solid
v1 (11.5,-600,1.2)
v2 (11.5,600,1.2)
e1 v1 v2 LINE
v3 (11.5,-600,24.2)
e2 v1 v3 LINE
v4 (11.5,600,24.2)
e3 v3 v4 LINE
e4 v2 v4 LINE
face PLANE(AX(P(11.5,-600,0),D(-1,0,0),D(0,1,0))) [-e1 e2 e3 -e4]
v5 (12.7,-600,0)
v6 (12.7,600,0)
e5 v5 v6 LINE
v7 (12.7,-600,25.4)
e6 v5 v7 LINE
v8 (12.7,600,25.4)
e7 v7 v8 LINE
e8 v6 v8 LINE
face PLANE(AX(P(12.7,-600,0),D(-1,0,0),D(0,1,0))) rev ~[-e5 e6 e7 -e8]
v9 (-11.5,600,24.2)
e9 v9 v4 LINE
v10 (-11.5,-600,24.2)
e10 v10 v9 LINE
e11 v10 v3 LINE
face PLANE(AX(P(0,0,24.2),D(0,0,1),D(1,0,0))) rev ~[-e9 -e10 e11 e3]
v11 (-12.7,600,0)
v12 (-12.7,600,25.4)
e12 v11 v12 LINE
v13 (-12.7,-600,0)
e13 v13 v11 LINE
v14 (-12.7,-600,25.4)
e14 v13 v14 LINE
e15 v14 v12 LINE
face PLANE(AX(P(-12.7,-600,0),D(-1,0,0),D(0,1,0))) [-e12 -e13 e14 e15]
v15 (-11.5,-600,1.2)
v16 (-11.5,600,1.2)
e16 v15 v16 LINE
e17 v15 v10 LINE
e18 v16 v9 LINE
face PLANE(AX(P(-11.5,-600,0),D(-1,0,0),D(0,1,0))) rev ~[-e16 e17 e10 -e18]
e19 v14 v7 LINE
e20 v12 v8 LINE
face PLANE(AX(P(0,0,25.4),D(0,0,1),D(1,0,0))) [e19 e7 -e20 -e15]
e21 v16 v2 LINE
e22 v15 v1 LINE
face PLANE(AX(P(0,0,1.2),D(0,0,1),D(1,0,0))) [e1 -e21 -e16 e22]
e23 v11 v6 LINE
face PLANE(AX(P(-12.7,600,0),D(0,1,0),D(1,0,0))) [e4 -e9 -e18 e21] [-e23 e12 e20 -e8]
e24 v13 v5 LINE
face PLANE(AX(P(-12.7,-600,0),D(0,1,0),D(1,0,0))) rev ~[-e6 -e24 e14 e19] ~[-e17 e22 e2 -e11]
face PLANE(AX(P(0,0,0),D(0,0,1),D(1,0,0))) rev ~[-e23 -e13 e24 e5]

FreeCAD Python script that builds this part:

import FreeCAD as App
import Part
import Sketcher

V = App.Vector
Q = App.Units.Quantity


def faces_at(feature, points):
    """Names of the faces that lie closest to the given points."""
    faces = feature.Shape.Faces
    near = lambda p: min(range(len(faces)), key=lambda i: faces[i].distToShape(Part.Vertex(*p))[0])
    return sorted({f"Face{near(p) + 1}" for p in points})


def add_polygon(sketch, points):
    """Adds a closed chain of lines whose ends are joined by coincident constraints."""
    first, n = sketch.GeometryCount, len(points)
    for a, b in zip(points, points[1:] + points[:1]):
        sketch.addGeometry(Part.LineSegment(App.Vector(*a, 0), App.Vector(*b, 0)), False)
    for i in range(n):
        sketch.addConstraint(Sketcher.Constraint("Coincident", first + i, 2, first + (i + 1) % n, 1))

doc = App.newDocument("Part")
body = doc.addObject("PartDesign::Body", "Body")

sketch1 = body.newObject("Sketcher::SketchObject", "Sketch")
sketch1.AttachmentSupport = (doc.getObject("XY_Plane"), [""])
sketch1.MapMode = "FlatFace"
add_polygon(sketch1, [(-13, 600), (-13, -600), (13, -600), (13, 600)])
sketch1.addConstraint([
    Sketcher.Constraint("Vertical", 0),
    Sketcher.Constraint("Horizontal", 1),
    Sketcher.Constraint("Vertical", 2),
    Sketcher.Constraint("Horizontal", 3),
    Sketcher.Constraint("Symmetric", 0, 2, 2, 2, -1, 1),
    Sketcher.Constraint("DistanceY", 0, 2, 0, 1, Q("1200 mm")),
    Sketcher.Constraint("DistanceX", 1, 1, 1, 2, Q("25.4 mm")),
])
pad1 = body.newObject("PartDesign::Pad", "Pad")
pad1.Profile = sketch1
pad1.Length = 25.4
doc.recompute()

thickness = body.newObject("PartDesign::Thickness", "Thickness")
thickness.Base = (pad1, faces_at(pad1, [(0, -600, 12.7), (0, 600, 12.7)]))
thickness.Value = 1.2
thickness.Reversed = True
thickness.Join = "Arc"

doc.recompute()
